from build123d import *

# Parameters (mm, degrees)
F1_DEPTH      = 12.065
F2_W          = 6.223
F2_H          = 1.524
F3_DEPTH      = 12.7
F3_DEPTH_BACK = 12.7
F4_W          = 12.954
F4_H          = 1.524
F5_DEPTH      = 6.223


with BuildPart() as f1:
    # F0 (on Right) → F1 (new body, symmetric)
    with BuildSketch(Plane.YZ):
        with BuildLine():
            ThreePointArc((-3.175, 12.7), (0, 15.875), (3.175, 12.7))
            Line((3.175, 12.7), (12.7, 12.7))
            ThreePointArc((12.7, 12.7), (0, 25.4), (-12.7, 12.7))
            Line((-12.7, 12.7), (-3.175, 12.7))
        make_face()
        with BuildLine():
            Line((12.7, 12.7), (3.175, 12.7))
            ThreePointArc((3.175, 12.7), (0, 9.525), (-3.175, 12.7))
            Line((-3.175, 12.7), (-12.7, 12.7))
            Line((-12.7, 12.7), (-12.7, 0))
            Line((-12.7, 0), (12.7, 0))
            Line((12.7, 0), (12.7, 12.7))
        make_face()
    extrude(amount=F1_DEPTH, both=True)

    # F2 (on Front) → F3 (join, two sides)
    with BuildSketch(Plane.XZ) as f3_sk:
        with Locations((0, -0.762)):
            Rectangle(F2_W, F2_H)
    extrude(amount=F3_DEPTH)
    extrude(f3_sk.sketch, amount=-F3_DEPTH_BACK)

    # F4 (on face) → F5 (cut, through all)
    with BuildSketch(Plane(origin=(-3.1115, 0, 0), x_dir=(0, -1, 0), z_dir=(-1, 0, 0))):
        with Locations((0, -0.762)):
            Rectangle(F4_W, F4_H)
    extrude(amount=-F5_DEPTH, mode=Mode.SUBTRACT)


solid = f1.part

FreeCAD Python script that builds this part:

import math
import FreeCAD as App
import Part
import Sketcher
Q = App.Units.Quantity


def add_polygon(sketch, points):
    """Adds a closed chain of lines whose ends are joined by coincident constraints."""
    first, n = sketch.GeometryCount, len(points)
    for a, b in zip(points, points[1:] + points[:1]):
        sketch.addGeometry(Part.LineSegment(App.Vector(*a, 0), App.Vector(*b, 0)), False)
    for i in range(n):
        sketch.addConstraint(Sketcher.Constraint("Coincident", first + i, 2, first + (i + 1) % n, 1))

doc = App.newDocument("Part")
body = doc.addObject("PartDesign::Body", "Body")

# Sketch on YZ plane
sketch1 = body.newObject("Sketcher::SketchObject", "Sketch")
sketch1.AttachmentSupport = (doc.getObject("YZ_Plane"), [""])
sketch1.MapMode = "FlatFace"
sketch1.addGeometry(Part.ArcOfCircle(Part.Circle(App.Vector(0, 12.7, 0), App.Vector(0, 0, 1), 12.7), math.radians(0), math.radians(180)), False)
sketch1.addGeometry(Part.LineSegment(App.Vector(-12.7, 12.7, 0), App.Vector(-12.7, 0, 0)), False)
sketch1.addGeometry(Part.LineSegment(App.Vector(-12.7, 0, 0), App.Vector(12.7, 0, 0)), False)
sketch1.addGeometry(Part.LineSegment(App.Vector(12.7, 0, 0), App.Vector(12.7, 12.7, 0)), False)
sketch1.addGeometry(Part.Circle(App.Vector(0, 12.7, 0), App.Vector(0, 0, 1), 3.2), False)
sketch1.addConstraint(Sketcher.Constraint("Tangent", 0, 2, 1, 1))
sketch1.addConstraint(Sketcher.Constraint("Coincident", 1, 2, 2, 1))
sketch1.addConstraint(Sketcher.Constraint("Coincident", 2, 2, 3, 1))
sketch1.addConstraint(Sketcher.Constraint("Tangent", 3, 2, 0, 1))
sketch1.addConstraint(Sketcher.Constraint("Vertical", 1))
sketch1.addConstraint(Sketcher.Constraint("Horizontal", 2))
sketch1.addConstraint(Sketcher.Constraint("Vertical", 3))
sketch1.addConstraint(Sketcher.Constraint("Coincident", 4, 3, 0, 3))
sketch1.addConstraint(Sketcher.Constraint("Symmetric", 1, 2, 2, 2, -1, 1))
sketch1.addConstraint(Sketcher.Constraint("Radius", 0, Q("0.5 in")))
sketch1.addConstraint(Sketcher.Constraint("Diameter", 4, Q("0.25 in")))
sketch1.addConstraint(Sketcher.Constraint("DistanceY", 1, 2, 1, 1, Q("0.5 in")))
pad1 = body.newObject("PartDesign::Pad", "Pad")
pad1.Profile = sketch1
pad1.Length = Q("0.95 in")
pad1.Midplane = True

# Sketch on XZ plane
sketch2 = body.newObject("Sketcher::SketchObject", "Sketch001")
sketch2.AttachmentSupport = (doc.getObject("XZ_Plane"), [""])
sketch2.MapMode = "FlatFace"
add_polygon(sketch2, [(-3.1, 0), (-3.1, -1.5), (3.1, -1.5), (3.1, 0)])  # lines 0-3
sketch2.addConstraint(Sketcher.Constraint("Vertical", 0))
sketch2.addConstraint(Sketcher.Constraint("Horizontal", 1))
sketch2.addConstraint(Sketcher.Constraint("Vertical", 2))
sketch2.addConstraint(Sketcher.Constraint("Horizontal", 3))
sketch2.addConstraint(Sketcher.Constraint("Symmetric", 2, 2, 3, 2, -1, 1))
sketch2.addConstraint(Sketcher.Constraint("DistanceY", 0, 2, 0, 1, Q("0.06 in")))
sketch2.addConstraint(Sketcher.Constraint("DistanceX", 1, 1, 1, 2, Q("0.245 in")))
pad2 = body.newObject("PartDesign::Pad", "Pad001")
pad2.Profile = sketch2
pad2.Type = "TwoLengths"
pad2.Length = Q("0.5 in")
pad2.Length2 = Q("0.5 in")

# Sketch on YZ plane
sketch3 = body.newObject("Sketcher::SketchObject", "Sketch002")
sketch3.AttachmentSupport = (doc.getObject("YZ_Plane"), [""])
sketch3.MapMode = "FlatFace"
sketch3.AttachmentOffset = App.Placement(App.Vector(0, 0, -0.1225 * 25.4), App.Rotation())
add_polygon(sketch3, [(6.5, 0), (6.5, -1.5), (-6.5, -1.5), (-6.5, 0)])  # lines 0-3
sketch3.addConstraint(Sketcher.Constraint("Vertical", 0))
sketch3.addConstraint(Sketcher.Constraint("Horizontal", 1))
sketch3.addConstraint(Sketcher.Constraint("Vertical", 2))
sketch3.addConstraint(Sketcher.Constraint("Horizontal", 3))
sketch3.addConstraint(Sketcher.Constraint("Symmetric", 2, 2, 3, 2, -1, 1))
sketch3.addConstraint(Sketcher.Constraint("DistanceX", 1, 2, 1, 1, Q("0.51 in")))
sketch3.addConstraint(Sketcher.Constraint("DistanceY", 0, 2, 0, 1, Q("0.06 in")))
pocket1 = body.newObject("PartDesign::Pocket", "Pocket")
pocket1.Profile = sketch3
pocket1.Type = "ThroughAll"
pocket1.Reversed = True

doc.recompute()
